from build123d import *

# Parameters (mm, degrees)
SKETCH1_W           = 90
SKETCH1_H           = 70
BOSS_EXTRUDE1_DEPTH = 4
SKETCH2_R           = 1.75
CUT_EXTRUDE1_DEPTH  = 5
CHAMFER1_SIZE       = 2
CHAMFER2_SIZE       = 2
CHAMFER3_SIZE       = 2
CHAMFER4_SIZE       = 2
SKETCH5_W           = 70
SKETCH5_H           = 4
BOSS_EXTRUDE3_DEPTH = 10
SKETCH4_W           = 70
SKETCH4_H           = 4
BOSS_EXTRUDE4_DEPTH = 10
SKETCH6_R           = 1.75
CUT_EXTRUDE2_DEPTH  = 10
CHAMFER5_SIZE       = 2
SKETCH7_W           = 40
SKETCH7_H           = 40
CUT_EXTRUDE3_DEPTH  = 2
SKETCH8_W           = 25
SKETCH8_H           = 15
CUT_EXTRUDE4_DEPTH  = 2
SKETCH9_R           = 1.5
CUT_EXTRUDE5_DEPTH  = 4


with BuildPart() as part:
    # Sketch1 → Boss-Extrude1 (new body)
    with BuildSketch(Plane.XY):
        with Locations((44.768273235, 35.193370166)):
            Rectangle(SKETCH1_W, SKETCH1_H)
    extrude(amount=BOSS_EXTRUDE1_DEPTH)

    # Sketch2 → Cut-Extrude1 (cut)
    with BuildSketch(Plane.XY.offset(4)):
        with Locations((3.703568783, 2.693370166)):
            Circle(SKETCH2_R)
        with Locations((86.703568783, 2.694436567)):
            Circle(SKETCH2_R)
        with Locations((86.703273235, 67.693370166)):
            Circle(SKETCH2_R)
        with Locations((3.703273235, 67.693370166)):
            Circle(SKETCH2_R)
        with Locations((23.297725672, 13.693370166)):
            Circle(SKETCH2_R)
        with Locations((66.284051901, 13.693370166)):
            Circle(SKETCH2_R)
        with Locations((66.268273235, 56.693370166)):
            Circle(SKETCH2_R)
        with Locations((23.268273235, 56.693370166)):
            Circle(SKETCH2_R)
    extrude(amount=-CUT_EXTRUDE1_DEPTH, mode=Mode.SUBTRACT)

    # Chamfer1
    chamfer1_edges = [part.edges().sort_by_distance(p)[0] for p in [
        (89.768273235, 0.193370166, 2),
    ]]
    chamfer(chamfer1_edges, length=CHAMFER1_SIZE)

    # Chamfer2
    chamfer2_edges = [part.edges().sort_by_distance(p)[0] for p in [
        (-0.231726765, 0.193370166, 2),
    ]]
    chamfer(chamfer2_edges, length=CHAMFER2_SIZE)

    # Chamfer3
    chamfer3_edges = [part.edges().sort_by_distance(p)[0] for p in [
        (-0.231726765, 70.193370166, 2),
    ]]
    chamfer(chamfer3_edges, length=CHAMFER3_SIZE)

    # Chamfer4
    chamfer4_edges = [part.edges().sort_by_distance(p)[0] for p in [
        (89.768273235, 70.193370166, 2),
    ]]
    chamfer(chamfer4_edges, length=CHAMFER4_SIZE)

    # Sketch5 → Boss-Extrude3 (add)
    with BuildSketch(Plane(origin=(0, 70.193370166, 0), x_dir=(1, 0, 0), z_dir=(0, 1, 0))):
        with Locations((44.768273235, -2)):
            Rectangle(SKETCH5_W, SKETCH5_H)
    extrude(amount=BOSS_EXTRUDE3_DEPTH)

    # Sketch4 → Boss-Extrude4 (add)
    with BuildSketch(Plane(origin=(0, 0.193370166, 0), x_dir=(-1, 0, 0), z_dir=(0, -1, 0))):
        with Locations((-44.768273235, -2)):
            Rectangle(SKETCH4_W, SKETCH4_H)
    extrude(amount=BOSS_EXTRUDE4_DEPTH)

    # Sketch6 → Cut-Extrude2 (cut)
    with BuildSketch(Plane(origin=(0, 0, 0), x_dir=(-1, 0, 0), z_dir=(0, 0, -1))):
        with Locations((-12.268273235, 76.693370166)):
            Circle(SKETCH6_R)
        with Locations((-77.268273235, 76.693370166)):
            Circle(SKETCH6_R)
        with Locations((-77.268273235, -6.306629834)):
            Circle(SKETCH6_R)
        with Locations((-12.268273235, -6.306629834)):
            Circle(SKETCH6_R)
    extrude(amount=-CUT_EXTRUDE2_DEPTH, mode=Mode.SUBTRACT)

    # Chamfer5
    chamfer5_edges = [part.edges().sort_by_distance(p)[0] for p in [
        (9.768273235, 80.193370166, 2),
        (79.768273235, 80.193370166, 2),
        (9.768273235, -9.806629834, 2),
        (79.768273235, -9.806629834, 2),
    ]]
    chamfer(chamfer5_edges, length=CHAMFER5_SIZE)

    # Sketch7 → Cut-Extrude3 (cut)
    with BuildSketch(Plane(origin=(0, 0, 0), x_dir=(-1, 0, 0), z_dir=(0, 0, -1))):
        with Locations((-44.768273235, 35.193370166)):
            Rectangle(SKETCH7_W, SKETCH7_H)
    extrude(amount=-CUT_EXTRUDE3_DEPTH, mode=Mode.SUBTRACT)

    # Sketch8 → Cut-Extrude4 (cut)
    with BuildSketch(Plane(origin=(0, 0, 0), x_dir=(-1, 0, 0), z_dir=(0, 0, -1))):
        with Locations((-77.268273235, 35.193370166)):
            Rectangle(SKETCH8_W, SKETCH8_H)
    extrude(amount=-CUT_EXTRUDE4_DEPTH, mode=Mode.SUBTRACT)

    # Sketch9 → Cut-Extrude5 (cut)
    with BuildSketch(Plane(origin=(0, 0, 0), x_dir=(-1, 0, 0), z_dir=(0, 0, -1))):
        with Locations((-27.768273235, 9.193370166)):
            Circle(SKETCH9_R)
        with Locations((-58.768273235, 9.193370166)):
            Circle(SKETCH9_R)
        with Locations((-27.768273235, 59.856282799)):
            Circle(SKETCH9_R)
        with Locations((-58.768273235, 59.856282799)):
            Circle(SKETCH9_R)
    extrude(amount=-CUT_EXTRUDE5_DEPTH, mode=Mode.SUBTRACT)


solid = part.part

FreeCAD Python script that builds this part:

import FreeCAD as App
import Part
import Sketcher

V = App.Vector


def edges_at(feature, points):
    """Names of the edges that pass closest to the given points."""
    edges = feature.Shape.Edges
    near = lambda p: min(range(len(edges)), key=lambda i: edges[i].distToShape(Part.Vertex(*p))[0])
    return sorted({f"Edge{near(p) + 1}" for p in points})

doc = App.newDocument("Part")
body = doc.addObject("PartDesign::Body", "Body")

sketch1 = body.newObject("Sketcher::SketchObject", "Sketch")
sketch1.AttachmentSupport = (doc.getObject("XY_Plane"), [""])
sketch1.MapMode = "FlatFace"
sketch1.addGeometry(Part.LineSegment(V(0, 70, 0), V(0, 0, 0)), False)
sketch1.addGeometry(Part.LineSegment(V(0, 0, 0), V(90, 0, 0)), False)
sketch1.addGeometry(Part.LineSegment(V(90, 0, 0), V(90, 70, 0)), False)
sketch1.addGeometry(Part.LineSegment(V(90, 70, 0), V(0, 70, 0)), False)
sketch1.addConstraint(Sketcher.Constraint("Coincident", 0, 2, 1, 1))
sketch1.addConstraint(Sketcher.Constraint("Coincident", 1, 2, 2, 1))
sketch1.addConstraint(Sketcher.Constraint("Coincident", 2, 2, 3, 1))
sketch1.addConstraint(Sketcher.Constraint("Coincident", 3, 2, 0, 1))
sketch1.addConstraint(Sketcher.Constraint("Vertical", 0))
sketch1.addConstraint(Sketcher.Constraint("Horizontal", 1))
sketch1.addConstraint(Sketcher.Constraint("Vertical", 2))
sketch1.addConstraint(Sketcher.Constraint("Horizontal", 3))
sketch1.addConstraint(Sketcher.Constraint("DistanceX", 1, 1, 1, 2, 90.0))
sketch1.addConstraint(Sketcher.Constraint("DistanceY", 0, 2, 0, 1, 70.0))
sketch1.addConstraint(Sketcher.Constraint("DistanceY", -1, 1, 0, 2, 0.19337))
sketch1.addConstraint(Sketcher.Constraint("DistanceX", 0, 2, -1, 1, 0.231727))
pad1 = body.newObject("PartDesign::Pad", "Pad")
pad1.Profile = sketch1
pad1.Length = 4

sketch2 = body.newObject("Sketcher::SketchObject", "Sketch001")
sketch2.AttachmentSupport = (doc.getObject("XY_Plane"), [""])
sketch2.MapMode = "FlatFace"
sketch2.AttachmentOffset = App.Placement(V(0, 0, 4), App.Rotation())
sketch2.addGeometry(Part.Circle(V(3.7, 2.7, 0), V(0, 0, 1), 1.8), False)
sketch2.addGeometry(Part.Circle(V(86.7, 2.7, 0), V(0, 0, 1), 1.8), False)
sketch2.addGeometry(Part.Circle(V(86.7, 67.7, 0), V(0, 0, 1), 1.8), False)
sketch2.addGeometry(Part.Circle(V(3.7, 67.7, 0), V(0, 0, 1), 1.8), False)
sketch2.addGeometry(Part.Circle(V(23.3, 13.7, 0), V(0, 0, 1), 1.8), False)
sketch2.addGeometry(Part.Circle(V(66.3, 13.7, 0), V(0, 0, 1), 1.8), False)
sketch2.addGeometry(Part.Circle(V(66.3, 56.7, 0), V(0, 0, 1), 1.8), False)
sketch2.addGeometry(Part.Circle(V(23.3, 56.7, 0), V(0, 0, 1), 1.8), False)
sketch2.addConstraint(Sketcher.Constraint("Equal", 0, 1))
sketch2.addConstraint(Sketcher.Constraint("Equal", 1, 2))
sketch2.addConstraint(Sketcher.Constraint("Equal", 2, 3))
sketch2.addConstraint(Sketcher.Constraint("Equal", 3, 4))
sketch2.addConstraint(Sketcher.Constraint("Equal", 4, 5))
sketch2.addConstraint(Sketcher.Constraint("Equal", 5, 6))
sketch2.addConstraint(Sketcher.Constraint("Equal", 6, 7))
sketch2.addConstraint(Sketcher.Constraint("Horizontal", 2, 3, 3, 3))
sketch2.addConstraint(Sketcher.Constraint("Horizontal", 4, 3, 5, 3))
sketch2.addConstraint(Sketcher.Constraint("Horizontal", 6, 3, 7, 3))
sketch2.addConstraint(Sketcher.Constraint("Diameter", 0, 3.5))
sketch2.addConstraint(Sketcher.Constraint("DistanceX", 0, 3, 1, 3, 83.0))
sketch2.addConstraint(Sketcher.Constraint("DistanceY", 0, 3, 2, 3, 65.0))
sketch2.addConstraint(Sketcher.Constraint("DistanceX", 3, 3, 2, 3, 83.0))
sketch2.addConstraint(Sketcher.Constraint("DistanceY", 0, 3, 4, 3, 11.0))
sketch2.addConstraint(Sketcher.Constraint("DistanceY", 6, 3, 2, 3, 11.0))
sketch2.addConstraint(Sketcher.Constraint("DistanceX", 7, 3, 6, 3, 43.0))
sketch2.addConstraint(Sketcher.Constraint("DistanceX", 6, 3, 2, 3, 20.435))
sketch2.addConstraint(Sketcher.Constraint("DistanceX", -1, 1, 0, 3, 3.703569))
sketch2.addConstraint(Sketcher.Constraint("DistanceY", -1, 1, 0, 3, 2.69337))
sketch2.addConstraint(Sketcher.Constraint("DistanceX", -1, 1, 5, 3, 66.284052))
sketch2.addConstraint(Sketcher.Constraint("DistanceX", 5, 3, 2, 3, 20.419221))
sketch2.addConstraint(Sketcher.Constraint("DistanceY", -1, 1, 1, 3, 2.694437))
sketch2.addConstraint(Sketcher.Constraint("DistanceX", -1, 1, 4, 3, 23.297726))
pocket1 = body.newObject("PartDesign::Pocket", "Pocket")
pocket1.Profile = sketch2
pocket1.Length = 5
doc.recompute()

chamfer = body.newObject("PartDesign::Chamfer", "Chamfer")
chamfer.Base = (pocket1, edges_at(pocket1, [(89.768, 0.193, 2)]))
chamfer.Size = 2
doc.recompute()

chamfer2 = body.newObject("PartDesign::Chamfer", "Chamfer001")
chamfer2.Base = (chamfer, edges_at(chamfer, [(-0.232, 0.193, 2)]))
chamfer2.Size = 2
doc.recompute()

chamfer3 = body.newObject("PartDesign::Chamfer", "Chamfer002")
chamfer3.Base = (chamfer2, edges_at(chamfer2, [(-0.232, 70.193, 2)]))
chamfer3.Size = 2
doc.recompute()

chamfer4 = body.newObject("PartDesign::Chamfer", "Chamfer003")
chamfer4.Base = (chamfer3, edges_at(chamfer3, [(89.768, 70.193, 2)]))
chamfer4.Size = 2

sketch3 = body.newObject("Sketcher::SketchObject", "Sketch002")
sketch3.AttachmentSupport = (doc.getObject("XZ_Plane"), [""])
sketch3.MapMode = "FlatFace"
sketch3.AttachmentOffset = App.Placement(V(0, 0, -70.19337), App.Rotation())
sketch3.addGeometry(Part.LineSegment(V(9.8, 0, 0), V(9.8, 4, 0)), False)
sketch3.addGeometry(Part.LineSegment(V(9.8, 4, 0), V(79.8, 4, 0)), False)
sketch3.addGeometry(Part.LineSegment(V(79.8, 4, 0), V(79.8, 0, 0)), False)
sketch3.addGeometry(Part.LineSegment(V(79.8, 0, 0), V(9.8, 0, 0)), False)
sketch3.addConstraint(Sketcher.Constraint("Coincident", 0, 2, 1, 1))
sketch3.addConstraint(Sketcher.Constraint("Coincident", 1, 2, 2, 1))
sketch3.addConstraint(Sketcher.Constraint("Coincident", 2, 2, 3, 1))
sketch3.addConstraint(Sketcher.Constraint("Coincident", 3, 2, 0, 1))
sketch3.addConstraint(Sketcher.Constraint("Vertical", 0))
sketch3.addConstraint(Sketcher.Constraint("Horizontal", 1))
sketch3.addConstraint(Sketcher.Constraint("Vertical", 2))
sketch3.addConstraint(Sketcher.Constraint("Horizontal", 3))
sketch3.addConstraint(Sketcher.Constraint("PointOnObject", 2, 2, -1))
sketch3.addConstraint(Sketcher.Constraint("DistanceX", 1, 1, 1, 2, 70.0))
sketch3.addConstraint(Sketcher.Constraint("DistanceY", 0, 1, 0, 2, 4.0))
sketch3.addConstraint(Sketcher.Constraint("DistanceX", -1, 1, 0, 2, 9.768273))
pad2 = body.newObject("PartDesign::Pad", "Pad001")
pad2.Profile = sketch3
pad2.Length = 10
pad2.Reversed = True

sketch4 = body.newObject("Sketcher::SketchObject", "Sketch003")
sketch4.AttachmentSupport = (doc.getObject("XZ_Plane"), [""])
sketch4.MapMode = "FlatFace"
sketch4.AttachmentOffset = App.Placement(V(0, 0, -0.19337), App.Rotation())
sketch4.addGeometry(Part.LineSegment(V(79.8, 0, 0), V(79.8, 4, 0)), False)
sketch4.addGeometry(Part.LineSegment(V(79.8, 4, 0), V(9.8, 4, 0)), False)
sketch4.addGeometry(Part.LineSegment(V(9.8, 4, 0), V(9.8, 0, 0)), False)
sketch4.addGeometry(Part.LineSegment(V(9.8, 0, 0), V(79.8, 0, 0)), False)
sketch4.addConstraint(Sketcher.Constraint("Coincident", 0, 2, 1, 1))
sketch4.addConstraint(Sketcher.Constraint("Coincident", 1, 2, 2, 1))
sketch4.addConstraint(Sketcher.Constraint("Coincident", 2, 2, 3, 1))
sketch4.addConstraint(Sketcher.Constraint("Coincident", 3, 2, 0, 1))
sketch4.addConstraint(Sketcher.Constraint("Vertical", 0))
sketch4.addConstraint(Sketcher.Constraint("Horizontal", 1))
sketch4.addConstraint(Sketcher.Constraint("Vertical", 2))
sketch4.addConstraint(Sketcher.Constraint("Horizontal", 3))
sketch4.addConstraint(Sketcher.Constraint("PointOnObject", 2, 2, -1))
sketch4.addConstraint(Sketcher.Constraint("DistanceX", 1, 2, 1, 1, 70.0))
sketch4.addConstraint(Sketcher.Constraint("DistanceY", 0, 1, 0, 2, 4.0))
sketch4.addConstraint(Sketcher.Constraint("DistanceX", -1, 1, 0, 2, 79.768273))
pad3 = body.newObject("PartDesign::Pad", "Pad002")
pad3.Profile = sketch4
pad3.Length = 10

sketch5 = body.newObject("Sketcher::SketchObject", "Sketch004")
sketch5.AttachmentSupport = (doc.getObject("XY_Plane"), [""])
sketch5.MapMode = "FlatFace"
sketch5.addGeometry(Part.Circle(V(12.3, 76.7, 0), V(0, 0, 1), 1.8), False)
sketch5.addGeometry(Part.Circle(V(77.3, 76.7, 0), V(0, 0, 1), 1.8), False)
sketch5.addGeometry(Part.Circle(V(77.3, -6.3, 0), V(0, 0, 1), 1.8), False)
sketch5.addGeometry(Part.Circle(V(12.3, -6.3, 0), V(0, 0, 1), 1.8), False)
sketch5.addConstraint(Sketcher.Constraint("Equal", 0, 1))
sketch5.addConstraint(Sketcher.Constraint("Equal", 1, 2))
sketch5.addConstraint(Sketcher.Constraint("Equal", 2, 3))
sketch5.addConstraint(Sketcher.Constraint("Horizontal", 0, 3, 1, 3))
sketch5.addConstraint(Sketcher.Constraint("Horizontal", 2, 3, 3, 3))
sketch5.addConstraint(Sketcher.Constraint("Vertical", 1, 3, 2, 3))
sketch5.addConstraint(Sketcher.Constraint("Vertical", 0, 3, 3, 3))
sketch5.addConstraint(Sketcher.Constraint("Diameter", 0, 3.5))
sketch5.addConstraint(Sketcher.Constraint("DistanceX", 0, 3, 1, 3, 65.0))
sketch5.addConstraint(Sketcher.Constraint("DistanceY", 2, 3, 1, 3, 83.0))
sketch5.addConstraint(Sketcher.Constraint("DistanceY", -1, 1, 0, 3, 76.69337))
sketch5.addConstraint(Sketcher.Constraint("DistanceX", -1, 1, 0, 3, 12.268273))
pocket2 = body.newObject("PartDesign::Pocket", "Pocket001")
pocket2.Profile = sketch5
pocket2.Length = 10
pocket2.Reversed = True
doc.recompute()

chamfer5 = body.newObject("PartDesign::Chamfer", "Chamfer004")
chamfer5.Base = (pocket2, edges_at(pocket2, [
    (9.768, 80.193, 2),
    (79.768, 80.193, 2),
    (9.768, -9.807, 2),
    (79.768, -9.807, 2),
]))
chamfer5.Size = 2

sketch6 = body.newObject("Sketcher::SketchObject", "Sketch005")
sketch6.AttachmentSupport = (doc.getObject("XY_Plane"), [""])
sketch6.MapMode = "FlatFace"
sketch6.addGeometry(Part.LineSegment(V(65, 55, 0), V(65, 15, 0)), False)
sketch6.addGeometry(Part.LineSegment(V(65, 15, 0), V(25, 15, 0)), False)
sketch6.addGeometry(Part.LineSegment(V(25, 15, 0), V(25, 55, 0)), False)
sketch6.addGeometry(Part.LineSegment(V(25, 55, 0), V(65, 55, 0)), False)
sketch6.addConstraint(Sketcher.Constraint("Coincident", 0, 2, 1, 1))
sketch6.addConstraint(Sketcher.Constraint("Coincident", 1, 2, 2, 1))
sketch6.addConstraint(Sketcher.Constraint("Coincident", 2, 2, 3, 1))
sketch6.addConstraint(Sketcher.Constraint("Coincident", 3, 2, 0, 1))
sketch6.addConstraint(Sketcher.Constraint("Vertical", 0))
sketch6.addConstraint(Sketcher.Constraint("Horizontal", 1))
sketch6.addConstraint(Sketcher.Constraint("Vertical", 2))
sketch6.addConstraint(Sketcher.Constraint("Horizontal", 3))
sketch6.addConstraint(Sketcher.Constraint("Equal", 3, 0))
sketch6.addConstraint(Sketcher.Constraint("DistanceX", 1, 2, 1, 1, 40.0))
sketch6.addConstraint(Sketcher.Constraint("DistanceY", -1, 1, 0, 2, 15.19337))
sketch6.addConstraint(Sketcher.Constraint("DistanceX", -1, 1, 0, 2, 64.768273))
pocket3 = body.newObject("PartDesign::Pocket", "Pocket002")
pocket3.Profile = sketch6
pocket3.Length = 2
pocket3.Reversed = True

sketch7 = body.newObject("Sketcher::SketchObject", "Sketch006")
sketch7.AttachmentSupport = (doc.getObject("XY_Plane"), [""])
sketch7.MapMode = "FlatFace"
sketch7.addGeometry(Part.LineSegment(V(90, 43, 0), V(90, 28, 0)), False)
sketch7.addGeometry(Part.LineSegment(V(90, 28, 0), V(65, 28, 0)), False)
sketch7.addGeometry(Part.LineSegment(V(65, 28, 0), V(65, 43, 0)), False)
sketch7.addGeometry(Part.LineSegment(V(65, 43, 0), V(90, 43, 0)), False)
sketch7.addConstraint(Sketcher.Constraint("Coincident", 0, 2, 1, 1))
sketch7.addConstraint(Sketcher.Constraint("Coincident", 1, 2, 2, 1))
sketch7.addConstraint(Sketcher.Constraint("Coincident", 2, 2, 3, 1))
sketch7.addConstraint(Sketcher.Constraint("Coincident", 3, 2, 0, 1))
sketch7.addConstraint(Sketcher.Constraint("Vertical", 0))
sketch7.addConstraint(Sketcher.Constraint("Horizontal", 1))
sketch7.addConstraint(Sketcher.Constraint("Vertical", 2))
sketch7.addConstraint(Sketcher.Constraint("Horizontal", 3))
sketch7.addConstraint(Sketcher.Constraint("DistanceX", 1, 2, 1, 1, 25.0))
sketch7.addConstraint(Sketcher.Constraint("DistanceY", 0, 2, 0, 1, 15.0))
sketch7.addConstraint(Sketcher.Constraint("DistanceY", -1, 1, 0, 2, 27.69337))
sketch7.addConstraint(Sketcher.Constraint("DistanceX", -1, 1, 0, 2, 89.768273))
pocket4 = body.newObject("PartDesign::Pocket", "Pocket003")
pocket4.Profile = sketch7
pocket4.Length = 2
pocket4.Reversed = True

sketch8 = body.newObject("Sketcher::SketchObject", "Sketch007")
sketch8.AttachmentSupport = (doc.getObject("XY_Plane"), [""])
sketch8.MapMode = "FlatFace"
sketch8.addGeometry(Part.Circle(V(27.8, 9.2, 0), V(0, 0, 1), 1.5), False)
sketch8.addGeometry(Part.Circle(V(58.8, 9.2, 0), V(0, 0, 1), 1.5), False)
sketch8.addGeometry(Part.Circle(V(27.8, 59.9, 0), V(0, 0, 1), 1.5), False)
sketch8.addGeometry(Part.Circle(V(58.8, 59.9, 0), V(0, 0, 1), 1.5), False)
sketch8.addConstraint(Sketcher.Constraint("Equal", 0, 1))
sketch8.addConstraint(Sketcher.Constraint("Equal", 1, 2))
sketch8.addConstraint(Sketcher.Constraint("Equal", 2, 3))
sketch8.addConstraint(Sketcher.Constraint("Horizontal", 0, 3, 1, 3))
sketch8.addConstraint(Sketcher.Constraint("Horizontal", 2, 3, 3, 3))
sketch8.addConstraint(Sketcher.Constraint("Vertical", 0, 3, 2, 3))
sketch8.addConstraint(Sketcher.Constraint("Vertical", 1, 3, 3, 3))
sketch8.addConstraint(Sketcher.Constraint("Diameter", 0, 3.0))
sketch8.addConstraint(Sketcher.Constraint("DistanceX", 0, 3, 1, 3, 31.0))
sketch8.addConstraint(Sketcher.Constraint("DistanceY", -1, 1, 0, 3, 9.19337))
sketch8.addConstraint(Sketcher.Constraint("DistanceX", -1, 1, 0, 3, 27.768273))
sketch8.addConstraint(Sketcher.Constraint("DistanceY", -1, 1, 2, 3, 59.856283))
pocket5 = body.newObject("PartDesign::Pocket", "Pocket004")
pocket5.Profile = sketch8
pocket5.Length = 4
pocket5.Reversed = True

doc.recompute()
